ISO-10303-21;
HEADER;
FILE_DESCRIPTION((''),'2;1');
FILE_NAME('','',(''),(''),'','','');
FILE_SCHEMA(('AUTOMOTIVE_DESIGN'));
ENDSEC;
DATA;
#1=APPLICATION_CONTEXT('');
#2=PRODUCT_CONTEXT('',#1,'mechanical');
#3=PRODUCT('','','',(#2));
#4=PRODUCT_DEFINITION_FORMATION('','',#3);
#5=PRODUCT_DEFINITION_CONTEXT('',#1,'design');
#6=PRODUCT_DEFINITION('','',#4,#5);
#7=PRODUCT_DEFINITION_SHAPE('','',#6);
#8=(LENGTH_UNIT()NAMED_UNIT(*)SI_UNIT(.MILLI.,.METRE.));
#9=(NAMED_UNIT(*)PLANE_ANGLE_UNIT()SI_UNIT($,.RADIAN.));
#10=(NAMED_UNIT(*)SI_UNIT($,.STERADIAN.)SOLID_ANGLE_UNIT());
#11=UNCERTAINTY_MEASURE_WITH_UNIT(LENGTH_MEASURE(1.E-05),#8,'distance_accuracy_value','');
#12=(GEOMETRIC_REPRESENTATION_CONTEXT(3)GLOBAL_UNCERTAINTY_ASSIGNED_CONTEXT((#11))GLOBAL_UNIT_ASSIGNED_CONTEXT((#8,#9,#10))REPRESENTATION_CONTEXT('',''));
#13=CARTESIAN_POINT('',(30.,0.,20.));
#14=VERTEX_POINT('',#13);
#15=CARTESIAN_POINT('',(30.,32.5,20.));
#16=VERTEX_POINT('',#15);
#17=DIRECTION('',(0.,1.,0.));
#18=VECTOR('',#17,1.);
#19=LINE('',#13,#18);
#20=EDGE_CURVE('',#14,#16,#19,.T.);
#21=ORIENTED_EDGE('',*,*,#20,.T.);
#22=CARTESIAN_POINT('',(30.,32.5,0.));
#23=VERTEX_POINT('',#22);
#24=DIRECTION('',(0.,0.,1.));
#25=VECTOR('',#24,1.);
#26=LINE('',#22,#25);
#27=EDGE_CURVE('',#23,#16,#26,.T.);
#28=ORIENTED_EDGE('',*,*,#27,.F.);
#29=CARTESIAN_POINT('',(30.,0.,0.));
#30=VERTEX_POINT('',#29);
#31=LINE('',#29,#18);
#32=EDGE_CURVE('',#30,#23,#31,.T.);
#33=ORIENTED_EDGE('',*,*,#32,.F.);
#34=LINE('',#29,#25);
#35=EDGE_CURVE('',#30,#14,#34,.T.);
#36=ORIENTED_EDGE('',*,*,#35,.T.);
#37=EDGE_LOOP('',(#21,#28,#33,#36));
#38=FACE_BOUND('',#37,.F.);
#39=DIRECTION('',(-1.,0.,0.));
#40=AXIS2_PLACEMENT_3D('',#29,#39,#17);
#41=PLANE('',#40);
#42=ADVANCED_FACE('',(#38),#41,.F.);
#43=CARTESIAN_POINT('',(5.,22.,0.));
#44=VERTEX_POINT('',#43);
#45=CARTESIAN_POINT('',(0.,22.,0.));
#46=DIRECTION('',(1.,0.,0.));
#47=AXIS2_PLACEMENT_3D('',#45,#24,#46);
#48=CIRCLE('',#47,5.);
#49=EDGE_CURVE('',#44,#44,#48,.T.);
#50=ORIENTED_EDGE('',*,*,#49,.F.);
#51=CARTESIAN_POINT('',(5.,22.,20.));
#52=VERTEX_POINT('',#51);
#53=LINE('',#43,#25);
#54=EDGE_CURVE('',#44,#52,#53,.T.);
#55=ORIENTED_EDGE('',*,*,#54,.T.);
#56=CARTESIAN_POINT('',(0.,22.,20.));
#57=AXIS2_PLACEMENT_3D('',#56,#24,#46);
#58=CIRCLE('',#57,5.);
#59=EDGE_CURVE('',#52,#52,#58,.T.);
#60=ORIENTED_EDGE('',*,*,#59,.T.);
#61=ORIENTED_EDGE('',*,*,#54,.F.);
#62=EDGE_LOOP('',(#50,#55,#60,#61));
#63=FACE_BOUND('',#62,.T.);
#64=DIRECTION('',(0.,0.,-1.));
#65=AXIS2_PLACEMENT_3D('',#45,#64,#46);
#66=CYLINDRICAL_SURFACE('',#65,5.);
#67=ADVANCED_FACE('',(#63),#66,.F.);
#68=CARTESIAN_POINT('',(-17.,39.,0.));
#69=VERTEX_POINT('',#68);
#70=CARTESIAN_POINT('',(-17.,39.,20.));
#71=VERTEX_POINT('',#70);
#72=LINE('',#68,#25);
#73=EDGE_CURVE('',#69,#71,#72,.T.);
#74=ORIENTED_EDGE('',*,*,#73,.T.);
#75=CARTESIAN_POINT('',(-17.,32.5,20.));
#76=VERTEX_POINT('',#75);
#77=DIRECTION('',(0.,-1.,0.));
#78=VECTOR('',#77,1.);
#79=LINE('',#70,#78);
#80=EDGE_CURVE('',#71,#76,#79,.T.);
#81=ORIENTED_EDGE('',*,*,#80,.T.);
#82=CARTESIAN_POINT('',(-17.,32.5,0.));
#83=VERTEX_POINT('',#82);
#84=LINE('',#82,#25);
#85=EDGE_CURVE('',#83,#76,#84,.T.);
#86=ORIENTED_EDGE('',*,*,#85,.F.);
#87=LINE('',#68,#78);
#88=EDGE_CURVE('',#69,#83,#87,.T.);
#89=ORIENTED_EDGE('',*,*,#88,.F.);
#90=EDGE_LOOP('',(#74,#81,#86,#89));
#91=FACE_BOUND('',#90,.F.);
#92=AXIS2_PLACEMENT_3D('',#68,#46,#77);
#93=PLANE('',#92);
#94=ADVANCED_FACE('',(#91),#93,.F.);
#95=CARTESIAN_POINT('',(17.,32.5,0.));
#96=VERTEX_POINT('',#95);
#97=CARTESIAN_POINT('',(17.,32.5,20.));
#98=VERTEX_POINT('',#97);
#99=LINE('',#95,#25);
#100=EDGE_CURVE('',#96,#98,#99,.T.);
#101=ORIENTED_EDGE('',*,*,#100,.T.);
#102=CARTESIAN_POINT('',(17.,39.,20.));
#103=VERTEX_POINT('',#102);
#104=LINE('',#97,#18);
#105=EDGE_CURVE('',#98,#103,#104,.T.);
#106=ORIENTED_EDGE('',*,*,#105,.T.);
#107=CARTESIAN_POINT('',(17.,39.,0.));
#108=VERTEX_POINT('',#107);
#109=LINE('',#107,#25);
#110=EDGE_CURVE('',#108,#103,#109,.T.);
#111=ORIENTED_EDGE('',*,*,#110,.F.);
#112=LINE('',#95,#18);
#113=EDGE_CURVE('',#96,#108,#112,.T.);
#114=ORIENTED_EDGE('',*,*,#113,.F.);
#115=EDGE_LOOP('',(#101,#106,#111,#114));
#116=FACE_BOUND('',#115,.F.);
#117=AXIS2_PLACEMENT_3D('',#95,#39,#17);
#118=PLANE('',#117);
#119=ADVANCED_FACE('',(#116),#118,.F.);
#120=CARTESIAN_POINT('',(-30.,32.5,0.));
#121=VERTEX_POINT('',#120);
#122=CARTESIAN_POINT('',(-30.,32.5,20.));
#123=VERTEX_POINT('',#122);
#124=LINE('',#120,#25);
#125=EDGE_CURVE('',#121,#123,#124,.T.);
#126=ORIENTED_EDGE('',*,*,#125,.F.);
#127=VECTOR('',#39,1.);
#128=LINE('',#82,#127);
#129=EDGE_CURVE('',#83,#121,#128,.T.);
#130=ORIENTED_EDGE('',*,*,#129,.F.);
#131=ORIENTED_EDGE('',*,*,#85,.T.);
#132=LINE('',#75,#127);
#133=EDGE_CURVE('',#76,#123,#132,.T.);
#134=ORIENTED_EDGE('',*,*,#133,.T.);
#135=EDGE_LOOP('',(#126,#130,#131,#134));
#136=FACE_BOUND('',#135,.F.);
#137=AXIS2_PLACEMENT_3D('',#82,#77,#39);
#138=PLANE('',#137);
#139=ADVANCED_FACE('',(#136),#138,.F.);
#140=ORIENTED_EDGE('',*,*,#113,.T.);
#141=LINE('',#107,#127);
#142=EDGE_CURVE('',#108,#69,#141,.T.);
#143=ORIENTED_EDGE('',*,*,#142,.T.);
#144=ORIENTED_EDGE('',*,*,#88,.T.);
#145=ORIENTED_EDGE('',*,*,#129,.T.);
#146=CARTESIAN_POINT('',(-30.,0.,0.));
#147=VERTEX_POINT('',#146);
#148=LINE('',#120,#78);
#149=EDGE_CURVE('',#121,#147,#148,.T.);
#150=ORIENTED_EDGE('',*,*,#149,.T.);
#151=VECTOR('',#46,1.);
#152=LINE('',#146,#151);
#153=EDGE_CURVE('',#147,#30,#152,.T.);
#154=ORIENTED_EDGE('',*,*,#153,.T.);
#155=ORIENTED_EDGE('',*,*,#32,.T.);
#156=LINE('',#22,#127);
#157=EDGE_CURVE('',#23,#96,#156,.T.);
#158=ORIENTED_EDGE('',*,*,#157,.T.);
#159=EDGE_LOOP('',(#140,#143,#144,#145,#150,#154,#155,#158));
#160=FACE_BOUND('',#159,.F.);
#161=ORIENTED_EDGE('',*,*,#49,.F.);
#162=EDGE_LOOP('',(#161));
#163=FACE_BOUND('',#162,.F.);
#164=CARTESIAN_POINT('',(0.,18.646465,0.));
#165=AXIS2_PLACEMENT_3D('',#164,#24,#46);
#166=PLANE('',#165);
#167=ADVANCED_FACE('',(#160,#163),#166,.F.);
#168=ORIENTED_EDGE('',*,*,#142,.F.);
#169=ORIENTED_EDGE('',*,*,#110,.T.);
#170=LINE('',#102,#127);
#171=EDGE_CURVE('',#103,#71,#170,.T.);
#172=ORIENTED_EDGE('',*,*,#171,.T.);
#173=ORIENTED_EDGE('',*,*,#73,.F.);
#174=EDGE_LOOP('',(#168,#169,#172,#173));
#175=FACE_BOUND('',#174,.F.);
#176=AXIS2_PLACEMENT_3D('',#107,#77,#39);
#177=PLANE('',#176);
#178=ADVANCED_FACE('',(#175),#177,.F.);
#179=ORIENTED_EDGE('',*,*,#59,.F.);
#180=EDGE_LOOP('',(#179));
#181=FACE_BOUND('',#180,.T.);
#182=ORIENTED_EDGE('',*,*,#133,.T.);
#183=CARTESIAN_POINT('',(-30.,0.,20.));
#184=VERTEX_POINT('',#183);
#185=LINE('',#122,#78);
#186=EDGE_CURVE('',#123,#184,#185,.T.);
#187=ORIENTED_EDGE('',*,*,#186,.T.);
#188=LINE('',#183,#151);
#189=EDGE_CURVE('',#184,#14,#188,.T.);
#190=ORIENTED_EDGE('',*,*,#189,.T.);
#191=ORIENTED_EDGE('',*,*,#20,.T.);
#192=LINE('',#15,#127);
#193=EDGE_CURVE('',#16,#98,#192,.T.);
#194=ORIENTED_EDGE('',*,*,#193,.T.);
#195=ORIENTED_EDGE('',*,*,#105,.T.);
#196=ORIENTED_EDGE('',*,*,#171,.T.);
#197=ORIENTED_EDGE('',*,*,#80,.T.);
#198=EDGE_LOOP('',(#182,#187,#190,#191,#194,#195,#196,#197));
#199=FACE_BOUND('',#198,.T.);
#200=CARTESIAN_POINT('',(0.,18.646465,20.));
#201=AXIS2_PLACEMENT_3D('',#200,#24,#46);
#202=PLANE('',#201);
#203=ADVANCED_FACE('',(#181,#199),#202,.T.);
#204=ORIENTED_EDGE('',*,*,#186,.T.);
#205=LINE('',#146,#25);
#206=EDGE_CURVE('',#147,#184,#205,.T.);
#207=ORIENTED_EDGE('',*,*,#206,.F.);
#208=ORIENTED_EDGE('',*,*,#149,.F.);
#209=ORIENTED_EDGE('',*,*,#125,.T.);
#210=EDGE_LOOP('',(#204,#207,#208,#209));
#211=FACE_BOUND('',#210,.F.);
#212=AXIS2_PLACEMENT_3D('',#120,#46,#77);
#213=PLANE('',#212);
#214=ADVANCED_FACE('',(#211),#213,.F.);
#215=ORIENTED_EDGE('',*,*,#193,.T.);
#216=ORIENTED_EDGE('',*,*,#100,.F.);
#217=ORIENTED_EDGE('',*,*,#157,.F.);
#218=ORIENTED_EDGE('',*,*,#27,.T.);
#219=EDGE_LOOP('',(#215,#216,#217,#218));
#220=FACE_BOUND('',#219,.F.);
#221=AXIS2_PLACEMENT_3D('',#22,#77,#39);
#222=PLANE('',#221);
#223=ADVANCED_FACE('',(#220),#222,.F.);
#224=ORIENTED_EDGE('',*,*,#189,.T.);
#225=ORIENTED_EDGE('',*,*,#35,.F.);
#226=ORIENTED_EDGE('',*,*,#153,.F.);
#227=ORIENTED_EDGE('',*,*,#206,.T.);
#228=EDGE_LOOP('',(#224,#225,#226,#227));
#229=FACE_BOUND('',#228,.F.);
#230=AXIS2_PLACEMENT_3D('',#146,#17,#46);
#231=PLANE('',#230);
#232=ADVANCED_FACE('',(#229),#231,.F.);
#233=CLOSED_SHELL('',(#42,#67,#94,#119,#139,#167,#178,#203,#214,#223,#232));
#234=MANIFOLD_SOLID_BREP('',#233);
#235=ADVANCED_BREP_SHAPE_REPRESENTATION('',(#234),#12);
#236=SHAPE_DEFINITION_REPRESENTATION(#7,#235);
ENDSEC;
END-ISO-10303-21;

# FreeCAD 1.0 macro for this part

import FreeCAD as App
import Part
import Sketcher

V = App.Vector
Q = App.Units.Quantity


def add_polygon(sketch, points):
    """Adds a closed chain of lines whose ends are joined by coincident constraints."""
    first, n = sketch.GeometryCount, len(points)
    for a, b in zip(points, points[1:] + points[:1]):
        sketch.addGeometry(Part.LineSegment(App.Vector(*a, 0), App.Vector(*b, 0)), False)
    for i in range(n):
        sketch.addConstraint(Sketcher.Constraint("Coincident", first + i, 2, first + (i + 1) % n, 1))

doc = App.newDocument("Part")
body = doc.addObject("PartDesign::Body", "Body")

# Sketch on XY plane
sketch1 = doc.addObject("Sketcher::SketchObject", "Sketch")
body.addObject(sketch1)
sketch1.AttachmentSupport = (doc.XY_Plane, [""])
sketch1.MapMode = "FlatFace"
add_polygon(sketch1, [(-30, 0), (30, 0), (30, 32), (17, 32), (17, 39), (-17, 39), (-17, 32), (-30, 32)])  # lines 0-7
sketch1.addGeometry(Part.Circle(V(0, 22, 0), V(0, 0, 1), 5), False)  # 8
sketch1.addConstraint([
    Sketcher.Constraint("Horizontal", 0),
    Sketcher.Constraint("Vertical", 1),
    Sketcher.Constraint("Horizontal", 2),
    Sketcher.Constraint("Vertical", 3),
    Sketcher.Constraint("Horizontal", 4),
    Sketcher.Constraint("Vertical", 5),
    Sketcher.Constraint("Horizontal", 6),
    Sketcher.Constraint("Vertical", 7),
    Sketcher.Constraint("Symmetric", 0, 2, 7, 2, -1, 1),
    Sketcher.Constraint("Symmetric", 2, 2, 5, 2, -2),
    Sketcher.Constraint("PointOnObject", 8, 3, -2),
    Sketcher.Constraint("Diameter", 8, Q("10 mm")),
    Sketcher.Constraint("DistanceX", 0, 1, 0, 2, Q("60 mm")),
    Sketcher.Constraint("DistanceX", 2, 2, 2, 1, Q("13 mm")),
    Sketcher.Constraint("DistanceY", 1, 1, 1, 2, Q("32.5 mm")),
    Sketcher.Constraint("DistanceY", 3, 1, 3, 2, Q("6.5 mm")),
    Sketcher.Constraint("DistanceY", -1, 1, 8, 3, Q("22 mm")),
])
pad1 = doc.addObject("PartDesign::Pad", "Pad")
body.addObject(pad1)
pad1.Profile = sketch1
pad1.Length = 20

doc.recompute()
